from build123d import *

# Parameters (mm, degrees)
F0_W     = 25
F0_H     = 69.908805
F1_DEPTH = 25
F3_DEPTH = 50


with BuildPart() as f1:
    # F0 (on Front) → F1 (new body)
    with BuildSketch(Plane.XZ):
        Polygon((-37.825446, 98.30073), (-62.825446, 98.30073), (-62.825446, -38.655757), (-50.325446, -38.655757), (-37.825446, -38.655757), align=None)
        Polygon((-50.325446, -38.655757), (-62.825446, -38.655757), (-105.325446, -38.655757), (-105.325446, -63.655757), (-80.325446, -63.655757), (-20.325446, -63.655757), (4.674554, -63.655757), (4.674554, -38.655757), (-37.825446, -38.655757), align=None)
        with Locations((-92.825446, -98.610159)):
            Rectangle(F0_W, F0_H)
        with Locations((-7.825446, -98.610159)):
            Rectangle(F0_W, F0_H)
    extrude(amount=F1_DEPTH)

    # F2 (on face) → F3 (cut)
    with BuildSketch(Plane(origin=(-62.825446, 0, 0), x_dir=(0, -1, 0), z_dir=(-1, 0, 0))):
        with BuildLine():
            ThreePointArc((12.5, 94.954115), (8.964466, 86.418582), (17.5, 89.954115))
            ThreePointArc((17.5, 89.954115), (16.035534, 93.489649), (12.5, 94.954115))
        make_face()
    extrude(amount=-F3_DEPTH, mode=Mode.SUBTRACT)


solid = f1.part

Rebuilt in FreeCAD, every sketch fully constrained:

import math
import FreeCAD as App
import Part
import Sketcher
Q = App.Units.Quantity


def add_polygon(sketch, points):
    """Adds a closed chain of lines whose ends are joined by coincident constraints."""
    first, n = sketch.GeometryCount, len(points)
    for a, b in zip(points, points[1:] + points[:1]):
        sketch.addGeometry(Part.LineSegment(App.Vector(*a, 0), App.Vector(*b, 0)), False)
    for i in range(n):
        sketch.addConstraint(Sketcher.Constraint("Coincident", first + i, 2, first + (i + 1) % n, 1))

doc = App.newDocument("Part")
body = doc.addObject("PartDesign::Body", "Body")

# Sketch on XZ plane
sketch1 = body.newObject("Sketcher::SketchObject", "Sketch")
sketch1.AttachmentSupport = (doc.getObject("XZ_Plane"), [""])
sketch1.MapMode = "FlatFace"
add_polygon(sketch1, [(4.674554, -38.655757), (-37.825446, -38.655757), (-37.825446, 98.30073), (-62.825446, 98.30073), (-62.825446, -38.655757), (-105.325446, -38.655757), (-105.325446, -133.564561), (-80.325446, -133.564561), (-80.325446, -63.655757), (-20.325446, -63.655757), (-20.325446, -133.564561), (4.674554, -133.564561)])  # lines 0-11
sketch1.addConstraint([
    Sketcher.Constraint("Horizontal", 0),
    Sketcher.Constraint("Vertical", 1),
    Sketcher.Constraint("Horizontal", 2),
    Sketcher.Constraint("Vertical", 3),
    Sketcher.Constraint("Horizontal", 4),
    Sketcher.Constraint("Vertical", 5),
    Sketcher.Constraint("Horizontal", 6),
    Sketcher.Constraint("Vertical", 7),
    Sketcher.Constraint("Horizontal", 8),
    Sketcher.Constraint("Vertical", 9),
    Sketcher.Constraint("Horizontal", 10),
    Sketcher.Constraint("Vertical", 11),
    Sketcher.Constraint("Horizontal", 0, 2, 3, 2),
    Sketcher.Constraint("Horizontal", 6, 2, 9, 2),
    Sketcher.Constraint("Equal", 0, 4),
    Sketcher.Constraint("Equal", 2, 6),
    Sketcher.Constraint("Equal", 6, 10),
    Sketcher.Constraint("DistanceX", 2, 2, 2, 1, Q("25 mm")),
    Sketcher.Constraint("DistanceX", 8, 1, 8, 2, Q("60 mm")),
    Sketcher.Constraint("DistanceY", 7, 2, 3, 2, Q("25 mm")),
    Sketcher.Constraint("DistanceY", 1, 1, 1, 2, Q("136.956487 mm")),
    Sketcher.Constraint("DistanceY", 5, 2, 5, 1, Q("94.908805 mm")),
    Sketcher.Constraint("DistanceY", -1, 1, 1, 2, Q("98.30073 mm")),
    Sketcher.Constraint("DistanceX", 0, 2, -1, 1, Q("37.825446 mm")),
])
pad1 = body.newObject("PartDesign::Pad", "Pad")
pad1.Profile = sketch1
pad1.Length = 25

# Sketch on YZ plane
sketch2 = body.newObject("Sketcher::SketchObject", "Sketch001")
sketch2.AttachmentSupport = (doc.getObject("YZ_Plane"), [""])
sketch2.MapMode = "FlatFace"
sketch2.AttachmentOffset = App.Placement(App.Vector(0, 0, -62.825446), App.Rotation())
sketch2.addGeometry([
    Part.ArcOfCircle(Part.Circle(App.Vector(-12.5, 89.954115, 0), App.Vector(0, 0, 1), 5), math.radians(-179.999997), math.radians(89.999997)),
    Part.ArcOfCircle(Part.Circle(App.Vector(-12.5, 89.954115, 0), App.Vector(0, 0, 1), 5), math.radians(89.999996), math.radians(180.000004)),
], False)
sketch2.addConstraint([
    Sketcher.Constraint("Tangent", 0, 1, 1, 2),
    Sketcher.Constraint("Coincident", 1, 1, 0, 2),
    Sketcher.Constraint("Horizontal", 1, 3, 0, 1),
    Sketcher.Constraint("Vertical", 0, 3, 1, 1),
    Sketcher.Constraint("Radius", 0, Q("5 mm")),
    Sketcher.Constraint("DistanceX", 0, 3, -1, 1, Q("12.5 mm")),
    Sketcher.Constraint("DistanceY", -1, 1, 0, 3, Q("89.954115 mm")),
])
pocket1 = body.newObject("PartDesign::Pocket", "Pocket")
pocket1.Profile = sketch2
pocket1.Length = 50
pocket1.Reversed = True

doc.recompute()
